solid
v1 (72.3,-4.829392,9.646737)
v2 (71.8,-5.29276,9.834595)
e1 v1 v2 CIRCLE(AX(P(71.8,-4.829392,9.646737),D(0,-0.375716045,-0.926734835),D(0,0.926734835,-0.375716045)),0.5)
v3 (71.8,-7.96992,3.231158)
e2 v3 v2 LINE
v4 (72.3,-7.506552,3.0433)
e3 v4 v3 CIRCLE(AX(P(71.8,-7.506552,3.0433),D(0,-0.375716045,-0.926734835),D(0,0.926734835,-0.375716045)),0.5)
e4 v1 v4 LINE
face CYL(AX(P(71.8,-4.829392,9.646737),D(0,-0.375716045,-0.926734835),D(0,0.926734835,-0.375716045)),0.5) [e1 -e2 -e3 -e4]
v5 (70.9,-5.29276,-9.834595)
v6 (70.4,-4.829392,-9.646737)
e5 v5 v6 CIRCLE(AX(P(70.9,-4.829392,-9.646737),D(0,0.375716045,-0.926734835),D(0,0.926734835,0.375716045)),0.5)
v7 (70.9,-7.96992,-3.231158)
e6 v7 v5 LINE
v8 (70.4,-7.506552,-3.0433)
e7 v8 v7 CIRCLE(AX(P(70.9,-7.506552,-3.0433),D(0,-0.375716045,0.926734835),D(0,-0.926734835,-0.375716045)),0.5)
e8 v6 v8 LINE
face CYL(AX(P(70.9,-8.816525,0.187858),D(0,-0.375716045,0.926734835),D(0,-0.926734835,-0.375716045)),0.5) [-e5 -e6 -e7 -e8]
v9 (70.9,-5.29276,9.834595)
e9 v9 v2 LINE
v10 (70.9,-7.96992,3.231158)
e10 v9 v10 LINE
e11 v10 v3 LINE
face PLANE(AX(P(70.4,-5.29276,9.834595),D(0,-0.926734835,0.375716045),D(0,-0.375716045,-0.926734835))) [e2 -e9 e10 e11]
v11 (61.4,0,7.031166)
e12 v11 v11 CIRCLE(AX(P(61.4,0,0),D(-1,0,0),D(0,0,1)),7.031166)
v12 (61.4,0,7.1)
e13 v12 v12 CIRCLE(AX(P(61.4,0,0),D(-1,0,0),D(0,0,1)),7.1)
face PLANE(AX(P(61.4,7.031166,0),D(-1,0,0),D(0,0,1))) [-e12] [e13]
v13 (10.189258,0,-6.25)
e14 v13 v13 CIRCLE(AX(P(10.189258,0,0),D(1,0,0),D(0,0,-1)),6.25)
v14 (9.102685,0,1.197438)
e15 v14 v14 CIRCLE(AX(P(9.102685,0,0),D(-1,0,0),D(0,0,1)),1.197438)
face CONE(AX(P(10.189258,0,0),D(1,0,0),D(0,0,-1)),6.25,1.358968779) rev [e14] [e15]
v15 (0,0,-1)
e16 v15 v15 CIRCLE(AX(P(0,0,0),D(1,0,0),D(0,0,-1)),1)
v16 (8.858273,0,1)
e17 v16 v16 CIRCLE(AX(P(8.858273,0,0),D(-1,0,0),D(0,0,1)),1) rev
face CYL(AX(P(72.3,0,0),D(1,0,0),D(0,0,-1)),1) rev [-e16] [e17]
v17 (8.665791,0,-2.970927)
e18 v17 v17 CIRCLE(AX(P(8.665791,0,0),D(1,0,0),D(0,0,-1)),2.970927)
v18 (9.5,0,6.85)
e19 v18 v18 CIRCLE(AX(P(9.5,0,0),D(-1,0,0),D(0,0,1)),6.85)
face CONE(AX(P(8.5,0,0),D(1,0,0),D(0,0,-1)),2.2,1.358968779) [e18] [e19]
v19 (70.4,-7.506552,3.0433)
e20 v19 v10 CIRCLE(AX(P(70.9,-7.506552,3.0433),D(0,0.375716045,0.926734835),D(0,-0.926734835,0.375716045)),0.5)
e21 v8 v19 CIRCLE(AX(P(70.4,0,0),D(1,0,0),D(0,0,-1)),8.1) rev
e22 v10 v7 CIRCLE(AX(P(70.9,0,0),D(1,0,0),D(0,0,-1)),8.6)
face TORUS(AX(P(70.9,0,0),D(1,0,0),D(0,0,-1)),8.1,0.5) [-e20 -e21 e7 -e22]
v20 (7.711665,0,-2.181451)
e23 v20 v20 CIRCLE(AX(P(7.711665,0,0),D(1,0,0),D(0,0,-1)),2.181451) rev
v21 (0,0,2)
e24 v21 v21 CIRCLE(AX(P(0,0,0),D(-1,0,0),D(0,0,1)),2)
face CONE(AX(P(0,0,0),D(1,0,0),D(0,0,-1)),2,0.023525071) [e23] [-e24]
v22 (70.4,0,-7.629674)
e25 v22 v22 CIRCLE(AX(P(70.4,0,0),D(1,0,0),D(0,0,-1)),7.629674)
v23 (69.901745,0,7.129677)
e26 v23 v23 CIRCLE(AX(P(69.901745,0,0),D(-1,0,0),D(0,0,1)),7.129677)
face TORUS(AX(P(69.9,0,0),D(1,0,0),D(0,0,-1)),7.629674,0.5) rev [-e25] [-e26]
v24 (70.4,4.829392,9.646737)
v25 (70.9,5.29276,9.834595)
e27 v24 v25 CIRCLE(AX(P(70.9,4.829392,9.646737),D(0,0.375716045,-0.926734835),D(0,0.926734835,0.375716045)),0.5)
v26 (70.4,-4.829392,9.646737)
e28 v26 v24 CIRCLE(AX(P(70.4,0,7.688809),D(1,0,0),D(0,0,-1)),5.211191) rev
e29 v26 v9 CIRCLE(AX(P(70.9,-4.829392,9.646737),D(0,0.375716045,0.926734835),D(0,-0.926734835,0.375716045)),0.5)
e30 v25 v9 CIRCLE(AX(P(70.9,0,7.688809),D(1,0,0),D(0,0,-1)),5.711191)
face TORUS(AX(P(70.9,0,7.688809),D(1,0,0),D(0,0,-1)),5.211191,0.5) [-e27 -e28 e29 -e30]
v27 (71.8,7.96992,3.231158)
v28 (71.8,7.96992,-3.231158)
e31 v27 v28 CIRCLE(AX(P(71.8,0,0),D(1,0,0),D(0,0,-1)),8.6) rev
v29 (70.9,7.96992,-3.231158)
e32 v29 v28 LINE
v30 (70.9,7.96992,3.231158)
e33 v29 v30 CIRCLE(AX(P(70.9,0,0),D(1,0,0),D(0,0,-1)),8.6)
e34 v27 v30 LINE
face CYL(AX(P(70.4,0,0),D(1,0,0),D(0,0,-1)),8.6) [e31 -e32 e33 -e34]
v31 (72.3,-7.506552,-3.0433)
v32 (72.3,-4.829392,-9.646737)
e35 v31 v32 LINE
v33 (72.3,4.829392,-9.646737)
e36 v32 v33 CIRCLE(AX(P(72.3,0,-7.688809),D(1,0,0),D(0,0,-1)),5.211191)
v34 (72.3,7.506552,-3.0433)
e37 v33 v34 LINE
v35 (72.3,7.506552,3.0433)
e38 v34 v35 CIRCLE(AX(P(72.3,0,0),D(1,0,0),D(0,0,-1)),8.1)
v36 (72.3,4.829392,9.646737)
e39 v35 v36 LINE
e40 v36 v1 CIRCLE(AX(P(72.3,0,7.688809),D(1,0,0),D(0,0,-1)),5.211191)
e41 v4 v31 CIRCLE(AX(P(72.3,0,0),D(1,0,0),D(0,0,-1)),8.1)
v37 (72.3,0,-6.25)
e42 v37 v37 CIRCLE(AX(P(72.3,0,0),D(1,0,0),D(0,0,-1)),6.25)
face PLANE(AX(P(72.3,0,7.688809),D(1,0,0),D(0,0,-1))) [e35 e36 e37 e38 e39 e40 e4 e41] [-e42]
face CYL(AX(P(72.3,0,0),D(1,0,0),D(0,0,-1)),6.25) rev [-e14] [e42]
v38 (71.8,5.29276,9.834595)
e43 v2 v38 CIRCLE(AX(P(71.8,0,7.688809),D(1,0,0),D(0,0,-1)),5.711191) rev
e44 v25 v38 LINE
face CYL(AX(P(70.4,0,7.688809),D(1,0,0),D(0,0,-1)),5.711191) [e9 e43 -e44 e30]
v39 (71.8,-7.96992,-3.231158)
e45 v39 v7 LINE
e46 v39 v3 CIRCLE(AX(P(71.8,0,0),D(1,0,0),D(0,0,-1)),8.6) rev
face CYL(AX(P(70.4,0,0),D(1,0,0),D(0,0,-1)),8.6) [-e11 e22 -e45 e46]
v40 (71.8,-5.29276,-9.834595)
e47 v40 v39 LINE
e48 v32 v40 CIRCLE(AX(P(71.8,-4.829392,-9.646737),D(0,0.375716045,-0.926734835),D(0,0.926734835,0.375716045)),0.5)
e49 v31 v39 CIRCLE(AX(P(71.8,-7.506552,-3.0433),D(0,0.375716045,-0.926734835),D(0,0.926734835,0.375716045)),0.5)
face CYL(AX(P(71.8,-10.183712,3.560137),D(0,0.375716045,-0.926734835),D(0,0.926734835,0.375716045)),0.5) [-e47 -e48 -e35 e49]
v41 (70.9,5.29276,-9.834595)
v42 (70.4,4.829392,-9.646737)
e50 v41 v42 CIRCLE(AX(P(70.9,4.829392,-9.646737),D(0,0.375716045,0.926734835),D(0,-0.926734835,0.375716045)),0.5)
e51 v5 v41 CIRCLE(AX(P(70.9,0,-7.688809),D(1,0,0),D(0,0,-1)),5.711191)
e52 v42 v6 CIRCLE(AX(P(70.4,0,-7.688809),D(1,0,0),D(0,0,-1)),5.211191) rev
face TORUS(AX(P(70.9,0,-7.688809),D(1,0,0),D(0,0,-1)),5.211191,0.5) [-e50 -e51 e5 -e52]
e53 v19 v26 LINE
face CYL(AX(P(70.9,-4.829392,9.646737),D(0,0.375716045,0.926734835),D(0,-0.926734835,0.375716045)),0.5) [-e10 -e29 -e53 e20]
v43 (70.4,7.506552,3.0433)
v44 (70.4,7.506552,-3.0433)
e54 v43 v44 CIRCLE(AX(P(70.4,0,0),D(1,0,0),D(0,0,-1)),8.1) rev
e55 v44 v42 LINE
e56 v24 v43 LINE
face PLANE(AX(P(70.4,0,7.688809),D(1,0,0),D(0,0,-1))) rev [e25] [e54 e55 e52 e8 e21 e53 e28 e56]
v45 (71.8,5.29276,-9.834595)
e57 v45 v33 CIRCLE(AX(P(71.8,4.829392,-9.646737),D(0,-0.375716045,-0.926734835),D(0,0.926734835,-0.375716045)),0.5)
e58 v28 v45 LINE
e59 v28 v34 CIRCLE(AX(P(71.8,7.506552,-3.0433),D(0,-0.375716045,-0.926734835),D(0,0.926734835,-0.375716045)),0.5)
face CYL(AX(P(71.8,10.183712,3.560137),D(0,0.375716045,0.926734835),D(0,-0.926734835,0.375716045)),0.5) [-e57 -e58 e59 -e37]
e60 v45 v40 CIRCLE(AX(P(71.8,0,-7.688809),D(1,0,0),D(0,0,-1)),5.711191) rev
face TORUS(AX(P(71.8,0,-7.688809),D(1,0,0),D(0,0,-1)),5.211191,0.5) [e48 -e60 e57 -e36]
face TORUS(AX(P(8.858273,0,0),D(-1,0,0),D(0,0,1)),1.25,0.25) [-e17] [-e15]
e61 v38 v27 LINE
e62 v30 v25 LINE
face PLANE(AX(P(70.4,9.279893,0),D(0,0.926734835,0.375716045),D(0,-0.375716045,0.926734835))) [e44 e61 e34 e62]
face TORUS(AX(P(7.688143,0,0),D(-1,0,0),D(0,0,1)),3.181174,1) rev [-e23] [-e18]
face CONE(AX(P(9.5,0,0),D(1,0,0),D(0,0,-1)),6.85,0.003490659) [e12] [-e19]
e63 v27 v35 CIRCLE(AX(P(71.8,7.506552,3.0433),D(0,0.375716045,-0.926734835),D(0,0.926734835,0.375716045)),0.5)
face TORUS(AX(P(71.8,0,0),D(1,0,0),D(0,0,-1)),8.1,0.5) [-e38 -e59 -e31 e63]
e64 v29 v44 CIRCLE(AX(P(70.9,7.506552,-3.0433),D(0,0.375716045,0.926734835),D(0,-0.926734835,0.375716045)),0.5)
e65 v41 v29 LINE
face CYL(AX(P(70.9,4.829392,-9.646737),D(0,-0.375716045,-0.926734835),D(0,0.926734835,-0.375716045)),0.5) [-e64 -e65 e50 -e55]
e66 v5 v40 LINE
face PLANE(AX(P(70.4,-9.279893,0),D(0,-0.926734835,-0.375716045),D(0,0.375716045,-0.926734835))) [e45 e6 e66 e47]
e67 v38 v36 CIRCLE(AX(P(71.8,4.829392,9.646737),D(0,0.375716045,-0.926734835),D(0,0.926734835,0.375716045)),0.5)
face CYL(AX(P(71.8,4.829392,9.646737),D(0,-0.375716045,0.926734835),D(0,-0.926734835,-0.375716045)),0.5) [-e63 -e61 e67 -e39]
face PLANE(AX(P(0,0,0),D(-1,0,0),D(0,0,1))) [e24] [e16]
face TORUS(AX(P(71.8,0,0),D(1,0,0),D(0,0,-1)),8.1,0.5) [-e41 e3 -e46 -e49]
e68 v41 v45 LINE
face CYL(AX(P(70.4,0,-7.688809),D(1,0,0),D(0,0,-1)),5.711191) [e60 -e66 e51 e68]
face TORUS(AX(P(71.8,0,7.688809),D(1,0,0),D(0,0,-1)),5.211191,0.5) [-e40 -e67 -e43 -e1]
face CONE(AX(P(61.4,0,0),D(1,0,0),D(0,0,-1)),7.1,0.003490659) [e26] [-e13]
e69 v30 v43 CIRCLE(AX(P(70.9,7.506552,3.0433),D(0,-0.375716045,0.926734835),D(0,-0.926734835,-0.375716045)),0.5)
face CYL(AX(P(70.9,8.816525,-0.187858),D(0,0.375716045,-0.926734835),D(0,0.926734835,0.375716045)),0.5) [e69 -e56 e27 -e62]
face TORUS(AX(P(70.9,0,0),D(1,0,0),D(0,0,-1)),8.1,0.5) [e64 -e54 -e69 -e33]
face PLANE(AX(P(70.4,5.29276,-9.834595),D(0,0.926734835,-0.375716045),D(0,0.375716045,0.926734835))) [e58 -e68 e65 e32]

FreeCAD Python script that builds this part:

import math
import FreeCAD as App
import Part
import Sketcher

V = App.Vector
Q = App.Units.Quantity


def edges_at(feature, points):
    """Names of the edges that pass closest to the given points."""
    edges = feature.Shape.Edges
    near = lambda p: min(range(len(edges)), key=lambda i: edges[i].distToShape(Part.Vertex(*p))[0])
    return sorted({f"Edge{near(p) + 1}" for p in points})

doc = App.newDocument("Part")
params = doc.addObject("Spreadsheet::Sheet", "Params")
for row, (alias, value) in enumerate([
    ("pad1_length", "1.9 mm"),
    ("sketch2_height", "2 mm"),
    ("sketch2_width", "70.4 mm"),
    ("revolution_angle", "360 deg"),
    ("sketch3_height", "1 mm"),
    ("sketch3_width", "72.3 mm"),
    ("sketch3_height2", "6.25 mm"),
    ("groove_angle", "360 deg"),
    ("fillet_radius", "8.6 mm"),
    ("fillet2_radius", "0.25 mm"),
    ("fillet3_radius", "0.5 mm"),
    ("fillet4_radius", "1 mm"),
], start=1):
    params.set(f"A{row}", alias)
    params.set(f"B{row}", "=" + value)
    params.setAlias(f"B{row}", alias)

body = doc.addObject("PartDesign::Body", "Body")

# Sketch on YZ plane
sketch1 = doc.addObject("Sketcher::SketchObject", "Sketch")
body.addObject(sketch1)
sketch1.AttachmentSupport = (doc.YZ_Plane, [""])
sketch1.MapMode = "FlatFace"
sketch1.AttachmentOffset = App.Placement(V(0, 0, 72.3), App.Rotation())
sketch1.addGeometry(Part.LineSegment(V(-5, 10, 0), V(-9, 0, 0)), False)
sketch1.addGeometry(Part.LineSegment(V(-9, 0, 0), V(-5, -10, 0)), False)
sketch1.addGeometry(Part.ArcOfCircle(Part.Circle(V(0, -8, 0), V(0, 0, 1), 6), math.radians(-158), math.radians(-22)), False)
sketch1.addGeometry(Part.LineSegment(V(5, -10, 0), V(9, 0, 0)), False)
sketch1.addGeometry(Part.LineSegment(V(9, 0, 0), V(5, 10, 0)), False)
sketch1.addGeometry(Part.ArcOfCircle(Part.Circle(V(0, 8, 0), V(0, 0, 1), 6), math.radians(22), math.radians(158)), False)
sketch1.addConstraint(Sketcher.Constraint("Coincident", 0, 2, 1, 1))
sketch1.addConstraint(Sketcher.Constraint("Tangent", 1, 2, 2, 1))
sketch1.addConstraint(Sketcher.Constraint("Tangent", 2, 2, 3, 1))
sketch1.addConstraint(Sketcher.Constraint("Coincident", 3, 2, 4, 1))
sketch1.addConstraint(Sketcher.Constraint("Tangent", 4, 2, 5, 1))
sketch1.addConstraint(Sketcher.Constraint("Tangent", 5, 2, 0, 1))
sketch1.addConstraint(Sketcher.Constraint("Equal", 2, 5))
sketch1.addConstraint(Sketcher.Constraint("Symmetric", 2, 3, 5, 3, -1, 1))
sketch1.addConstraint(Sketcher.Constraint("Symmetric", 0, 2, 3, 2, -1, 1))
sketch1.addConstraint(Sketcher.Constraint("Symmetric", 1, 2, 2, 2, -2))
sketch1.addConstraint(Sketcher.Constraint("Radius", 2, Q("5.711191 mm")))
sketch1.addConstraint(Sketcher.Constraint("Distance", 0, Q("10.612092 mm")))
sketch1.addConstraint(Sketcher.Constraint("DistanceY", 2, 3, -1, 1, Q("7.688809 mm")))
pad1 = doc.addObject("PartDesign::Pad", "Pad")
body.addObject(pad1)
pad1.Profile = sketch1
pad1.setExpression("Length", "Params.pad1_length")
pad1.Reversed = True

# Sketch on XY plane
sketch2 = doc.addObject("Sketcher::SketchObject", "Sketch001")
body.addObject(sketch2)
sketch2.AttachmentSupport = (doc.XY_Plane, [""])
sketch2.MapMode = "FlatFace"
sketch2.addGeometry(Part.LineSegment(V(70.4, 7.13, 0), V(70.4, 0, 0)), False)
sketch2.addGeometry(Part.LineSegment(V(70.4, 0, 0), V(0, 0, 0)), False)
sketch2.addGeometry(Part.LineSegment(V(0, 0, 0), V(0, 2, 0)), False)
sketch2.addGeometry(Part.LineSegment(V(0, 2, 0), V(8.5, 2.2, 0)), False)
sketch2.addGeometry(Part.LineSegment(V(8.5, 2.2, 0), V(9.5, 6.85, 0)), False)
sketch2.addGeometry(Part.LineSegment(V(9.5, 6.85, 0), V(61.4, 7.03, 0)), False)
sketch2.addGeometry(Part.LineSegment(V(61.4, 7.03, 0), V(61.4, 7.1, 0)), False)
sketch2.addGeometry(Part.LineSegment(V(61.4, 7.1, 0), V(70.4, 7.13, 0)), False)
sketch2.addConstraint(Sketcher.Constraint("Coincident", 0, 2, 1, 1))
sketch2.addConstraint(Sketcher.Constraint("Coincident", 1, 2, 2, 1))
sketch2.addConstraint(Sketcher.Constraint("Coincident", 2, 2, 3, 1))
sketch2.addConstraint(Sketcher.Constraint("Coincident", 3, 2, 4, 1))
sketch2.addConstraint(Sketcher.Constraint("Coincident", 4, 2, 5, 1))
sketch2.addConstraint(Sketcher.Constraint("Coincident", 5, 2, 6, 1))
sketch2.addConstraint(Sketcher.Constraint("Coincident", 6, 2, 7, 1))
sketch2.addConstraint(Sketcher.Constraint("Coincident", 7, 2, 0, 1))
sketch2.addConstraint(Sketcher.Constraint("Vertical", 0))
sketch2.addConstraint(Sketcher.Constraint("Horizontal", 1))
sketch2.addConstraint(Sketcher.Constraint("Vertical", 2))
sketch2.addConstraint(Sketcher.Constraint("Vertical", 6))
sketch2.addConstraint(Sketcher.Constraint("Coincident", 1, 2, -1, 1))
sketch2.addConstraint(Sketcher.Constraint("Parallel", 5, 7))
sketch2.addConstraint(Sketcher.Constraint("DistanceY", 2, 1, 2, 2, Q("2 mm")))
sketch2.addConstraint(Sketcher.Constraint("DistanceX", 1, 2, 1, 1, Q("70.4 mm")))
sketch2.addConstraint(Sketcher.Constraint("Angle", 5, Q("0.2 deg")))
sketch2.addConstraint(Sketcher.Constraint("DistanceX", 3, 2, 4, 2, Q("1 mm")))
sketch2.addConstraint(Sketcher.Constraint("DistanceX", 5, 2, 0, 2, Q("9 mm")))
sketch2.addConstraint(Sketcher.Constraint("DistanceX", -1, 1, 3, 2, Q("8.5 mm")))
sketch2.addConstraint(Sketcher.Constraint("DistanceY", -1, 1, 3, 2, Q("2.2 mm")))
sketch2.addConstraint(Sketcher.Constraint("DistanceY", -1, 1, 6, 2, Q("7.1 mm")))
sketch2.addConstraint(Sketcher.Constraint("DistanceY", -1, 1, 4, 2, Q("6.85 mm")))
sketch2.setExpression("Constraints[14]", "Params.sketch2_height")
sketch2.setExpression("Constraints[15]", "Params.sketch2_width")
revolution = doc.addObject("PartDesign::Revolution", "Revolution")
body.addObject(revolution)
revolution.Profile = sketch2
revolution.ReferenceAxis = (sketch2, ["H_Axis"])
revolution.setExpression("Angle", "Params.revolution_angle")

# Sketch on XZ plane
sketch3 = doc.addObject("Sketcher::SketchObject", "Sketch002")
body.addObject(sketch3)
sketch3.AttachmentSupport = (doc.XZ_Plane, [""])
sketch3.MapMode = "FlatFace"
sketch3.addGeometry(Part.LineSegment(V(0, 0, 0), V(72.3, 0, 0)), False)
sketch3.addGeometry(Part.LineSegment(V(72.3, 0, 0), V(72.3, -6.2, 0)), False)
sketch3.addGeometry(Part.LineSegment(V(72.3, -6.2, 0), V(10.2, -6.2, 0)), False)
sketch3.addGeometry(Part.LineSegment(V(10.2, -6.2, 0), V(9.1, -1, 0)), False)
sketch3.addGeometry(Part.LineSegment(V(9.1, -1, 0), V(0, -1, 0)), False)
sketch3.addGeometry(Part.LineSegment(V(0, -1, 0), V(0, 0, 0)), False)
sketch3.addConstraint(Sketcher.Constraint("Coincident", 0, 2, 1, 1))
sketch3.addConstraint(Sketcher.Constraint("Coincident", 1, 2, 2, 1))
sketch3.addConstraint(Sketcher.Constraint("Coincident", 2, 2, 3, 1))
sketch3.addConstraint(Sketcher.Constraint("Coincident", 3, 2, 4, 1))
sketch3.addConstraint(Sketcher.Constraint("Coincident", 4, 2, 5, 1))
sketch3.addConstraint(Sketcher.Constraint("Coincident", 5, 2, 0, 1))
sketch3.addConstraint(Sketcher.Constraint("Horizontal", 0))
sketch3.addConstraint(Sketcher.Constraint("Vertical", 1))
sketch3.addConstraint(Sketcher.Constraint("Horizontal", 2))
sketch3.addConstraint(Sketcher.Constraint("Horizontal", 4))
sketch3.addConstraint(Sketcher.Constraint("Vertical", 5))
sketch3.addConstraint(Sketcher.Constraint("Coincident", 5, 2, -1, 1))
sketch3.addConstraint(Sketcher.Constraint("DistanceY", 5, 1, 5, 2, Q("1 mm")))
sketch3.addConstraint(Sketcher.Constraint("DistanceX", 0, 1, 0, 2, Q("72.3 mm")))
sketch3.addConstraint(Sketcher.Constraint("DistanceY", 1, 2, 1, 1, Q("6.25 mm")))
sketch3.addConstraint(Sketcher.Constraint("Distance", 3, Q("5.370029 mm")))
sketch3.addConstraint(Sketcher.Constraint("DistanceX", 2, 2, 2, 1, Q("62.110742 mm")))
sketch3.setExpression("Constraints[12]", "Params.sketch3_height")
sketch3.setExpression("Constraints[13]", "Params.sketch3_width")
sketch3.setExpression("Constraints[14]", "Params.sketch3_height2")
groove = doc.addObject("PartDesign::Groove", "Groove")
body.addObject(groove)
groove.Profile = sketch3
groove.ReferenceAxis = (sketch3, ["H_Axis"])
groove.setExpression("Angle", "Params.groove_angle")
doc.recompute()

fillet = doc.addObject("PartDesign::Fillet", "Fillet")
body.addObject(fillet)
fillet.Base = (groove, edges_at(groove, [(71.35, 9.28, 0), (71.35, -9.28, 0)]))
fillet.setExpression("Radius", "Params.fillet_radius")
doc.recompute()

fillet2 = doc.addObject("PartDesign::Fillet", "Fillet001")
body.addObject(fillet2)
fillet2.Base = (fillet, edges_at(fillet, [(9.06, 0, 1)]))
fillet2.setExpression("Radius", "Params.fillet2_radius")
doc.recompute()

fillet3 = doc.addObject("PartDesign::Fillet", "Fillet002")
body.addObject(fillet3)
fillet3.Base = (fillet2, edges_at(fillet2, [
    (70.4, 0, -13.4),
    (70.4, 6.631, -6.533),
    (70.4, -7.131, 0),
    (72.3, -6.631, -6.533),
    (72.3, 6.631, 6.533),
    (72.3, 8.6, 0),
    (72.3, -8.6, 0),
    (70.4, -6.631, -6.533),
    (70.4, 6.631, 6.533),
    (70.4, 8.6, 0),
    (70.4, -8.6, 0),
    (70.4, 0, 13.4),
    (72.3, 6.631, -6.533),
    (72.3, 0, -13.4),
    (70.4, -6.631, 6.533),
    (72.3, -6.631, 6.533),
    (72.3, 0, 13.4),
]))
fillet3.setExpression("Radius", "Params.fillet3_radius")
doc.recompute()

fillet4 = doc.addObject("PartDesign::Fillet", "Fillet003")
body.addObject(fillet4)
fillet4.Base = (fillet3, edges_at(fillet3, [(8.5, -2.2, 0)]))
fillet4.setExpression("Radius", "Params.fillet4_radius")

doc.recompute()
